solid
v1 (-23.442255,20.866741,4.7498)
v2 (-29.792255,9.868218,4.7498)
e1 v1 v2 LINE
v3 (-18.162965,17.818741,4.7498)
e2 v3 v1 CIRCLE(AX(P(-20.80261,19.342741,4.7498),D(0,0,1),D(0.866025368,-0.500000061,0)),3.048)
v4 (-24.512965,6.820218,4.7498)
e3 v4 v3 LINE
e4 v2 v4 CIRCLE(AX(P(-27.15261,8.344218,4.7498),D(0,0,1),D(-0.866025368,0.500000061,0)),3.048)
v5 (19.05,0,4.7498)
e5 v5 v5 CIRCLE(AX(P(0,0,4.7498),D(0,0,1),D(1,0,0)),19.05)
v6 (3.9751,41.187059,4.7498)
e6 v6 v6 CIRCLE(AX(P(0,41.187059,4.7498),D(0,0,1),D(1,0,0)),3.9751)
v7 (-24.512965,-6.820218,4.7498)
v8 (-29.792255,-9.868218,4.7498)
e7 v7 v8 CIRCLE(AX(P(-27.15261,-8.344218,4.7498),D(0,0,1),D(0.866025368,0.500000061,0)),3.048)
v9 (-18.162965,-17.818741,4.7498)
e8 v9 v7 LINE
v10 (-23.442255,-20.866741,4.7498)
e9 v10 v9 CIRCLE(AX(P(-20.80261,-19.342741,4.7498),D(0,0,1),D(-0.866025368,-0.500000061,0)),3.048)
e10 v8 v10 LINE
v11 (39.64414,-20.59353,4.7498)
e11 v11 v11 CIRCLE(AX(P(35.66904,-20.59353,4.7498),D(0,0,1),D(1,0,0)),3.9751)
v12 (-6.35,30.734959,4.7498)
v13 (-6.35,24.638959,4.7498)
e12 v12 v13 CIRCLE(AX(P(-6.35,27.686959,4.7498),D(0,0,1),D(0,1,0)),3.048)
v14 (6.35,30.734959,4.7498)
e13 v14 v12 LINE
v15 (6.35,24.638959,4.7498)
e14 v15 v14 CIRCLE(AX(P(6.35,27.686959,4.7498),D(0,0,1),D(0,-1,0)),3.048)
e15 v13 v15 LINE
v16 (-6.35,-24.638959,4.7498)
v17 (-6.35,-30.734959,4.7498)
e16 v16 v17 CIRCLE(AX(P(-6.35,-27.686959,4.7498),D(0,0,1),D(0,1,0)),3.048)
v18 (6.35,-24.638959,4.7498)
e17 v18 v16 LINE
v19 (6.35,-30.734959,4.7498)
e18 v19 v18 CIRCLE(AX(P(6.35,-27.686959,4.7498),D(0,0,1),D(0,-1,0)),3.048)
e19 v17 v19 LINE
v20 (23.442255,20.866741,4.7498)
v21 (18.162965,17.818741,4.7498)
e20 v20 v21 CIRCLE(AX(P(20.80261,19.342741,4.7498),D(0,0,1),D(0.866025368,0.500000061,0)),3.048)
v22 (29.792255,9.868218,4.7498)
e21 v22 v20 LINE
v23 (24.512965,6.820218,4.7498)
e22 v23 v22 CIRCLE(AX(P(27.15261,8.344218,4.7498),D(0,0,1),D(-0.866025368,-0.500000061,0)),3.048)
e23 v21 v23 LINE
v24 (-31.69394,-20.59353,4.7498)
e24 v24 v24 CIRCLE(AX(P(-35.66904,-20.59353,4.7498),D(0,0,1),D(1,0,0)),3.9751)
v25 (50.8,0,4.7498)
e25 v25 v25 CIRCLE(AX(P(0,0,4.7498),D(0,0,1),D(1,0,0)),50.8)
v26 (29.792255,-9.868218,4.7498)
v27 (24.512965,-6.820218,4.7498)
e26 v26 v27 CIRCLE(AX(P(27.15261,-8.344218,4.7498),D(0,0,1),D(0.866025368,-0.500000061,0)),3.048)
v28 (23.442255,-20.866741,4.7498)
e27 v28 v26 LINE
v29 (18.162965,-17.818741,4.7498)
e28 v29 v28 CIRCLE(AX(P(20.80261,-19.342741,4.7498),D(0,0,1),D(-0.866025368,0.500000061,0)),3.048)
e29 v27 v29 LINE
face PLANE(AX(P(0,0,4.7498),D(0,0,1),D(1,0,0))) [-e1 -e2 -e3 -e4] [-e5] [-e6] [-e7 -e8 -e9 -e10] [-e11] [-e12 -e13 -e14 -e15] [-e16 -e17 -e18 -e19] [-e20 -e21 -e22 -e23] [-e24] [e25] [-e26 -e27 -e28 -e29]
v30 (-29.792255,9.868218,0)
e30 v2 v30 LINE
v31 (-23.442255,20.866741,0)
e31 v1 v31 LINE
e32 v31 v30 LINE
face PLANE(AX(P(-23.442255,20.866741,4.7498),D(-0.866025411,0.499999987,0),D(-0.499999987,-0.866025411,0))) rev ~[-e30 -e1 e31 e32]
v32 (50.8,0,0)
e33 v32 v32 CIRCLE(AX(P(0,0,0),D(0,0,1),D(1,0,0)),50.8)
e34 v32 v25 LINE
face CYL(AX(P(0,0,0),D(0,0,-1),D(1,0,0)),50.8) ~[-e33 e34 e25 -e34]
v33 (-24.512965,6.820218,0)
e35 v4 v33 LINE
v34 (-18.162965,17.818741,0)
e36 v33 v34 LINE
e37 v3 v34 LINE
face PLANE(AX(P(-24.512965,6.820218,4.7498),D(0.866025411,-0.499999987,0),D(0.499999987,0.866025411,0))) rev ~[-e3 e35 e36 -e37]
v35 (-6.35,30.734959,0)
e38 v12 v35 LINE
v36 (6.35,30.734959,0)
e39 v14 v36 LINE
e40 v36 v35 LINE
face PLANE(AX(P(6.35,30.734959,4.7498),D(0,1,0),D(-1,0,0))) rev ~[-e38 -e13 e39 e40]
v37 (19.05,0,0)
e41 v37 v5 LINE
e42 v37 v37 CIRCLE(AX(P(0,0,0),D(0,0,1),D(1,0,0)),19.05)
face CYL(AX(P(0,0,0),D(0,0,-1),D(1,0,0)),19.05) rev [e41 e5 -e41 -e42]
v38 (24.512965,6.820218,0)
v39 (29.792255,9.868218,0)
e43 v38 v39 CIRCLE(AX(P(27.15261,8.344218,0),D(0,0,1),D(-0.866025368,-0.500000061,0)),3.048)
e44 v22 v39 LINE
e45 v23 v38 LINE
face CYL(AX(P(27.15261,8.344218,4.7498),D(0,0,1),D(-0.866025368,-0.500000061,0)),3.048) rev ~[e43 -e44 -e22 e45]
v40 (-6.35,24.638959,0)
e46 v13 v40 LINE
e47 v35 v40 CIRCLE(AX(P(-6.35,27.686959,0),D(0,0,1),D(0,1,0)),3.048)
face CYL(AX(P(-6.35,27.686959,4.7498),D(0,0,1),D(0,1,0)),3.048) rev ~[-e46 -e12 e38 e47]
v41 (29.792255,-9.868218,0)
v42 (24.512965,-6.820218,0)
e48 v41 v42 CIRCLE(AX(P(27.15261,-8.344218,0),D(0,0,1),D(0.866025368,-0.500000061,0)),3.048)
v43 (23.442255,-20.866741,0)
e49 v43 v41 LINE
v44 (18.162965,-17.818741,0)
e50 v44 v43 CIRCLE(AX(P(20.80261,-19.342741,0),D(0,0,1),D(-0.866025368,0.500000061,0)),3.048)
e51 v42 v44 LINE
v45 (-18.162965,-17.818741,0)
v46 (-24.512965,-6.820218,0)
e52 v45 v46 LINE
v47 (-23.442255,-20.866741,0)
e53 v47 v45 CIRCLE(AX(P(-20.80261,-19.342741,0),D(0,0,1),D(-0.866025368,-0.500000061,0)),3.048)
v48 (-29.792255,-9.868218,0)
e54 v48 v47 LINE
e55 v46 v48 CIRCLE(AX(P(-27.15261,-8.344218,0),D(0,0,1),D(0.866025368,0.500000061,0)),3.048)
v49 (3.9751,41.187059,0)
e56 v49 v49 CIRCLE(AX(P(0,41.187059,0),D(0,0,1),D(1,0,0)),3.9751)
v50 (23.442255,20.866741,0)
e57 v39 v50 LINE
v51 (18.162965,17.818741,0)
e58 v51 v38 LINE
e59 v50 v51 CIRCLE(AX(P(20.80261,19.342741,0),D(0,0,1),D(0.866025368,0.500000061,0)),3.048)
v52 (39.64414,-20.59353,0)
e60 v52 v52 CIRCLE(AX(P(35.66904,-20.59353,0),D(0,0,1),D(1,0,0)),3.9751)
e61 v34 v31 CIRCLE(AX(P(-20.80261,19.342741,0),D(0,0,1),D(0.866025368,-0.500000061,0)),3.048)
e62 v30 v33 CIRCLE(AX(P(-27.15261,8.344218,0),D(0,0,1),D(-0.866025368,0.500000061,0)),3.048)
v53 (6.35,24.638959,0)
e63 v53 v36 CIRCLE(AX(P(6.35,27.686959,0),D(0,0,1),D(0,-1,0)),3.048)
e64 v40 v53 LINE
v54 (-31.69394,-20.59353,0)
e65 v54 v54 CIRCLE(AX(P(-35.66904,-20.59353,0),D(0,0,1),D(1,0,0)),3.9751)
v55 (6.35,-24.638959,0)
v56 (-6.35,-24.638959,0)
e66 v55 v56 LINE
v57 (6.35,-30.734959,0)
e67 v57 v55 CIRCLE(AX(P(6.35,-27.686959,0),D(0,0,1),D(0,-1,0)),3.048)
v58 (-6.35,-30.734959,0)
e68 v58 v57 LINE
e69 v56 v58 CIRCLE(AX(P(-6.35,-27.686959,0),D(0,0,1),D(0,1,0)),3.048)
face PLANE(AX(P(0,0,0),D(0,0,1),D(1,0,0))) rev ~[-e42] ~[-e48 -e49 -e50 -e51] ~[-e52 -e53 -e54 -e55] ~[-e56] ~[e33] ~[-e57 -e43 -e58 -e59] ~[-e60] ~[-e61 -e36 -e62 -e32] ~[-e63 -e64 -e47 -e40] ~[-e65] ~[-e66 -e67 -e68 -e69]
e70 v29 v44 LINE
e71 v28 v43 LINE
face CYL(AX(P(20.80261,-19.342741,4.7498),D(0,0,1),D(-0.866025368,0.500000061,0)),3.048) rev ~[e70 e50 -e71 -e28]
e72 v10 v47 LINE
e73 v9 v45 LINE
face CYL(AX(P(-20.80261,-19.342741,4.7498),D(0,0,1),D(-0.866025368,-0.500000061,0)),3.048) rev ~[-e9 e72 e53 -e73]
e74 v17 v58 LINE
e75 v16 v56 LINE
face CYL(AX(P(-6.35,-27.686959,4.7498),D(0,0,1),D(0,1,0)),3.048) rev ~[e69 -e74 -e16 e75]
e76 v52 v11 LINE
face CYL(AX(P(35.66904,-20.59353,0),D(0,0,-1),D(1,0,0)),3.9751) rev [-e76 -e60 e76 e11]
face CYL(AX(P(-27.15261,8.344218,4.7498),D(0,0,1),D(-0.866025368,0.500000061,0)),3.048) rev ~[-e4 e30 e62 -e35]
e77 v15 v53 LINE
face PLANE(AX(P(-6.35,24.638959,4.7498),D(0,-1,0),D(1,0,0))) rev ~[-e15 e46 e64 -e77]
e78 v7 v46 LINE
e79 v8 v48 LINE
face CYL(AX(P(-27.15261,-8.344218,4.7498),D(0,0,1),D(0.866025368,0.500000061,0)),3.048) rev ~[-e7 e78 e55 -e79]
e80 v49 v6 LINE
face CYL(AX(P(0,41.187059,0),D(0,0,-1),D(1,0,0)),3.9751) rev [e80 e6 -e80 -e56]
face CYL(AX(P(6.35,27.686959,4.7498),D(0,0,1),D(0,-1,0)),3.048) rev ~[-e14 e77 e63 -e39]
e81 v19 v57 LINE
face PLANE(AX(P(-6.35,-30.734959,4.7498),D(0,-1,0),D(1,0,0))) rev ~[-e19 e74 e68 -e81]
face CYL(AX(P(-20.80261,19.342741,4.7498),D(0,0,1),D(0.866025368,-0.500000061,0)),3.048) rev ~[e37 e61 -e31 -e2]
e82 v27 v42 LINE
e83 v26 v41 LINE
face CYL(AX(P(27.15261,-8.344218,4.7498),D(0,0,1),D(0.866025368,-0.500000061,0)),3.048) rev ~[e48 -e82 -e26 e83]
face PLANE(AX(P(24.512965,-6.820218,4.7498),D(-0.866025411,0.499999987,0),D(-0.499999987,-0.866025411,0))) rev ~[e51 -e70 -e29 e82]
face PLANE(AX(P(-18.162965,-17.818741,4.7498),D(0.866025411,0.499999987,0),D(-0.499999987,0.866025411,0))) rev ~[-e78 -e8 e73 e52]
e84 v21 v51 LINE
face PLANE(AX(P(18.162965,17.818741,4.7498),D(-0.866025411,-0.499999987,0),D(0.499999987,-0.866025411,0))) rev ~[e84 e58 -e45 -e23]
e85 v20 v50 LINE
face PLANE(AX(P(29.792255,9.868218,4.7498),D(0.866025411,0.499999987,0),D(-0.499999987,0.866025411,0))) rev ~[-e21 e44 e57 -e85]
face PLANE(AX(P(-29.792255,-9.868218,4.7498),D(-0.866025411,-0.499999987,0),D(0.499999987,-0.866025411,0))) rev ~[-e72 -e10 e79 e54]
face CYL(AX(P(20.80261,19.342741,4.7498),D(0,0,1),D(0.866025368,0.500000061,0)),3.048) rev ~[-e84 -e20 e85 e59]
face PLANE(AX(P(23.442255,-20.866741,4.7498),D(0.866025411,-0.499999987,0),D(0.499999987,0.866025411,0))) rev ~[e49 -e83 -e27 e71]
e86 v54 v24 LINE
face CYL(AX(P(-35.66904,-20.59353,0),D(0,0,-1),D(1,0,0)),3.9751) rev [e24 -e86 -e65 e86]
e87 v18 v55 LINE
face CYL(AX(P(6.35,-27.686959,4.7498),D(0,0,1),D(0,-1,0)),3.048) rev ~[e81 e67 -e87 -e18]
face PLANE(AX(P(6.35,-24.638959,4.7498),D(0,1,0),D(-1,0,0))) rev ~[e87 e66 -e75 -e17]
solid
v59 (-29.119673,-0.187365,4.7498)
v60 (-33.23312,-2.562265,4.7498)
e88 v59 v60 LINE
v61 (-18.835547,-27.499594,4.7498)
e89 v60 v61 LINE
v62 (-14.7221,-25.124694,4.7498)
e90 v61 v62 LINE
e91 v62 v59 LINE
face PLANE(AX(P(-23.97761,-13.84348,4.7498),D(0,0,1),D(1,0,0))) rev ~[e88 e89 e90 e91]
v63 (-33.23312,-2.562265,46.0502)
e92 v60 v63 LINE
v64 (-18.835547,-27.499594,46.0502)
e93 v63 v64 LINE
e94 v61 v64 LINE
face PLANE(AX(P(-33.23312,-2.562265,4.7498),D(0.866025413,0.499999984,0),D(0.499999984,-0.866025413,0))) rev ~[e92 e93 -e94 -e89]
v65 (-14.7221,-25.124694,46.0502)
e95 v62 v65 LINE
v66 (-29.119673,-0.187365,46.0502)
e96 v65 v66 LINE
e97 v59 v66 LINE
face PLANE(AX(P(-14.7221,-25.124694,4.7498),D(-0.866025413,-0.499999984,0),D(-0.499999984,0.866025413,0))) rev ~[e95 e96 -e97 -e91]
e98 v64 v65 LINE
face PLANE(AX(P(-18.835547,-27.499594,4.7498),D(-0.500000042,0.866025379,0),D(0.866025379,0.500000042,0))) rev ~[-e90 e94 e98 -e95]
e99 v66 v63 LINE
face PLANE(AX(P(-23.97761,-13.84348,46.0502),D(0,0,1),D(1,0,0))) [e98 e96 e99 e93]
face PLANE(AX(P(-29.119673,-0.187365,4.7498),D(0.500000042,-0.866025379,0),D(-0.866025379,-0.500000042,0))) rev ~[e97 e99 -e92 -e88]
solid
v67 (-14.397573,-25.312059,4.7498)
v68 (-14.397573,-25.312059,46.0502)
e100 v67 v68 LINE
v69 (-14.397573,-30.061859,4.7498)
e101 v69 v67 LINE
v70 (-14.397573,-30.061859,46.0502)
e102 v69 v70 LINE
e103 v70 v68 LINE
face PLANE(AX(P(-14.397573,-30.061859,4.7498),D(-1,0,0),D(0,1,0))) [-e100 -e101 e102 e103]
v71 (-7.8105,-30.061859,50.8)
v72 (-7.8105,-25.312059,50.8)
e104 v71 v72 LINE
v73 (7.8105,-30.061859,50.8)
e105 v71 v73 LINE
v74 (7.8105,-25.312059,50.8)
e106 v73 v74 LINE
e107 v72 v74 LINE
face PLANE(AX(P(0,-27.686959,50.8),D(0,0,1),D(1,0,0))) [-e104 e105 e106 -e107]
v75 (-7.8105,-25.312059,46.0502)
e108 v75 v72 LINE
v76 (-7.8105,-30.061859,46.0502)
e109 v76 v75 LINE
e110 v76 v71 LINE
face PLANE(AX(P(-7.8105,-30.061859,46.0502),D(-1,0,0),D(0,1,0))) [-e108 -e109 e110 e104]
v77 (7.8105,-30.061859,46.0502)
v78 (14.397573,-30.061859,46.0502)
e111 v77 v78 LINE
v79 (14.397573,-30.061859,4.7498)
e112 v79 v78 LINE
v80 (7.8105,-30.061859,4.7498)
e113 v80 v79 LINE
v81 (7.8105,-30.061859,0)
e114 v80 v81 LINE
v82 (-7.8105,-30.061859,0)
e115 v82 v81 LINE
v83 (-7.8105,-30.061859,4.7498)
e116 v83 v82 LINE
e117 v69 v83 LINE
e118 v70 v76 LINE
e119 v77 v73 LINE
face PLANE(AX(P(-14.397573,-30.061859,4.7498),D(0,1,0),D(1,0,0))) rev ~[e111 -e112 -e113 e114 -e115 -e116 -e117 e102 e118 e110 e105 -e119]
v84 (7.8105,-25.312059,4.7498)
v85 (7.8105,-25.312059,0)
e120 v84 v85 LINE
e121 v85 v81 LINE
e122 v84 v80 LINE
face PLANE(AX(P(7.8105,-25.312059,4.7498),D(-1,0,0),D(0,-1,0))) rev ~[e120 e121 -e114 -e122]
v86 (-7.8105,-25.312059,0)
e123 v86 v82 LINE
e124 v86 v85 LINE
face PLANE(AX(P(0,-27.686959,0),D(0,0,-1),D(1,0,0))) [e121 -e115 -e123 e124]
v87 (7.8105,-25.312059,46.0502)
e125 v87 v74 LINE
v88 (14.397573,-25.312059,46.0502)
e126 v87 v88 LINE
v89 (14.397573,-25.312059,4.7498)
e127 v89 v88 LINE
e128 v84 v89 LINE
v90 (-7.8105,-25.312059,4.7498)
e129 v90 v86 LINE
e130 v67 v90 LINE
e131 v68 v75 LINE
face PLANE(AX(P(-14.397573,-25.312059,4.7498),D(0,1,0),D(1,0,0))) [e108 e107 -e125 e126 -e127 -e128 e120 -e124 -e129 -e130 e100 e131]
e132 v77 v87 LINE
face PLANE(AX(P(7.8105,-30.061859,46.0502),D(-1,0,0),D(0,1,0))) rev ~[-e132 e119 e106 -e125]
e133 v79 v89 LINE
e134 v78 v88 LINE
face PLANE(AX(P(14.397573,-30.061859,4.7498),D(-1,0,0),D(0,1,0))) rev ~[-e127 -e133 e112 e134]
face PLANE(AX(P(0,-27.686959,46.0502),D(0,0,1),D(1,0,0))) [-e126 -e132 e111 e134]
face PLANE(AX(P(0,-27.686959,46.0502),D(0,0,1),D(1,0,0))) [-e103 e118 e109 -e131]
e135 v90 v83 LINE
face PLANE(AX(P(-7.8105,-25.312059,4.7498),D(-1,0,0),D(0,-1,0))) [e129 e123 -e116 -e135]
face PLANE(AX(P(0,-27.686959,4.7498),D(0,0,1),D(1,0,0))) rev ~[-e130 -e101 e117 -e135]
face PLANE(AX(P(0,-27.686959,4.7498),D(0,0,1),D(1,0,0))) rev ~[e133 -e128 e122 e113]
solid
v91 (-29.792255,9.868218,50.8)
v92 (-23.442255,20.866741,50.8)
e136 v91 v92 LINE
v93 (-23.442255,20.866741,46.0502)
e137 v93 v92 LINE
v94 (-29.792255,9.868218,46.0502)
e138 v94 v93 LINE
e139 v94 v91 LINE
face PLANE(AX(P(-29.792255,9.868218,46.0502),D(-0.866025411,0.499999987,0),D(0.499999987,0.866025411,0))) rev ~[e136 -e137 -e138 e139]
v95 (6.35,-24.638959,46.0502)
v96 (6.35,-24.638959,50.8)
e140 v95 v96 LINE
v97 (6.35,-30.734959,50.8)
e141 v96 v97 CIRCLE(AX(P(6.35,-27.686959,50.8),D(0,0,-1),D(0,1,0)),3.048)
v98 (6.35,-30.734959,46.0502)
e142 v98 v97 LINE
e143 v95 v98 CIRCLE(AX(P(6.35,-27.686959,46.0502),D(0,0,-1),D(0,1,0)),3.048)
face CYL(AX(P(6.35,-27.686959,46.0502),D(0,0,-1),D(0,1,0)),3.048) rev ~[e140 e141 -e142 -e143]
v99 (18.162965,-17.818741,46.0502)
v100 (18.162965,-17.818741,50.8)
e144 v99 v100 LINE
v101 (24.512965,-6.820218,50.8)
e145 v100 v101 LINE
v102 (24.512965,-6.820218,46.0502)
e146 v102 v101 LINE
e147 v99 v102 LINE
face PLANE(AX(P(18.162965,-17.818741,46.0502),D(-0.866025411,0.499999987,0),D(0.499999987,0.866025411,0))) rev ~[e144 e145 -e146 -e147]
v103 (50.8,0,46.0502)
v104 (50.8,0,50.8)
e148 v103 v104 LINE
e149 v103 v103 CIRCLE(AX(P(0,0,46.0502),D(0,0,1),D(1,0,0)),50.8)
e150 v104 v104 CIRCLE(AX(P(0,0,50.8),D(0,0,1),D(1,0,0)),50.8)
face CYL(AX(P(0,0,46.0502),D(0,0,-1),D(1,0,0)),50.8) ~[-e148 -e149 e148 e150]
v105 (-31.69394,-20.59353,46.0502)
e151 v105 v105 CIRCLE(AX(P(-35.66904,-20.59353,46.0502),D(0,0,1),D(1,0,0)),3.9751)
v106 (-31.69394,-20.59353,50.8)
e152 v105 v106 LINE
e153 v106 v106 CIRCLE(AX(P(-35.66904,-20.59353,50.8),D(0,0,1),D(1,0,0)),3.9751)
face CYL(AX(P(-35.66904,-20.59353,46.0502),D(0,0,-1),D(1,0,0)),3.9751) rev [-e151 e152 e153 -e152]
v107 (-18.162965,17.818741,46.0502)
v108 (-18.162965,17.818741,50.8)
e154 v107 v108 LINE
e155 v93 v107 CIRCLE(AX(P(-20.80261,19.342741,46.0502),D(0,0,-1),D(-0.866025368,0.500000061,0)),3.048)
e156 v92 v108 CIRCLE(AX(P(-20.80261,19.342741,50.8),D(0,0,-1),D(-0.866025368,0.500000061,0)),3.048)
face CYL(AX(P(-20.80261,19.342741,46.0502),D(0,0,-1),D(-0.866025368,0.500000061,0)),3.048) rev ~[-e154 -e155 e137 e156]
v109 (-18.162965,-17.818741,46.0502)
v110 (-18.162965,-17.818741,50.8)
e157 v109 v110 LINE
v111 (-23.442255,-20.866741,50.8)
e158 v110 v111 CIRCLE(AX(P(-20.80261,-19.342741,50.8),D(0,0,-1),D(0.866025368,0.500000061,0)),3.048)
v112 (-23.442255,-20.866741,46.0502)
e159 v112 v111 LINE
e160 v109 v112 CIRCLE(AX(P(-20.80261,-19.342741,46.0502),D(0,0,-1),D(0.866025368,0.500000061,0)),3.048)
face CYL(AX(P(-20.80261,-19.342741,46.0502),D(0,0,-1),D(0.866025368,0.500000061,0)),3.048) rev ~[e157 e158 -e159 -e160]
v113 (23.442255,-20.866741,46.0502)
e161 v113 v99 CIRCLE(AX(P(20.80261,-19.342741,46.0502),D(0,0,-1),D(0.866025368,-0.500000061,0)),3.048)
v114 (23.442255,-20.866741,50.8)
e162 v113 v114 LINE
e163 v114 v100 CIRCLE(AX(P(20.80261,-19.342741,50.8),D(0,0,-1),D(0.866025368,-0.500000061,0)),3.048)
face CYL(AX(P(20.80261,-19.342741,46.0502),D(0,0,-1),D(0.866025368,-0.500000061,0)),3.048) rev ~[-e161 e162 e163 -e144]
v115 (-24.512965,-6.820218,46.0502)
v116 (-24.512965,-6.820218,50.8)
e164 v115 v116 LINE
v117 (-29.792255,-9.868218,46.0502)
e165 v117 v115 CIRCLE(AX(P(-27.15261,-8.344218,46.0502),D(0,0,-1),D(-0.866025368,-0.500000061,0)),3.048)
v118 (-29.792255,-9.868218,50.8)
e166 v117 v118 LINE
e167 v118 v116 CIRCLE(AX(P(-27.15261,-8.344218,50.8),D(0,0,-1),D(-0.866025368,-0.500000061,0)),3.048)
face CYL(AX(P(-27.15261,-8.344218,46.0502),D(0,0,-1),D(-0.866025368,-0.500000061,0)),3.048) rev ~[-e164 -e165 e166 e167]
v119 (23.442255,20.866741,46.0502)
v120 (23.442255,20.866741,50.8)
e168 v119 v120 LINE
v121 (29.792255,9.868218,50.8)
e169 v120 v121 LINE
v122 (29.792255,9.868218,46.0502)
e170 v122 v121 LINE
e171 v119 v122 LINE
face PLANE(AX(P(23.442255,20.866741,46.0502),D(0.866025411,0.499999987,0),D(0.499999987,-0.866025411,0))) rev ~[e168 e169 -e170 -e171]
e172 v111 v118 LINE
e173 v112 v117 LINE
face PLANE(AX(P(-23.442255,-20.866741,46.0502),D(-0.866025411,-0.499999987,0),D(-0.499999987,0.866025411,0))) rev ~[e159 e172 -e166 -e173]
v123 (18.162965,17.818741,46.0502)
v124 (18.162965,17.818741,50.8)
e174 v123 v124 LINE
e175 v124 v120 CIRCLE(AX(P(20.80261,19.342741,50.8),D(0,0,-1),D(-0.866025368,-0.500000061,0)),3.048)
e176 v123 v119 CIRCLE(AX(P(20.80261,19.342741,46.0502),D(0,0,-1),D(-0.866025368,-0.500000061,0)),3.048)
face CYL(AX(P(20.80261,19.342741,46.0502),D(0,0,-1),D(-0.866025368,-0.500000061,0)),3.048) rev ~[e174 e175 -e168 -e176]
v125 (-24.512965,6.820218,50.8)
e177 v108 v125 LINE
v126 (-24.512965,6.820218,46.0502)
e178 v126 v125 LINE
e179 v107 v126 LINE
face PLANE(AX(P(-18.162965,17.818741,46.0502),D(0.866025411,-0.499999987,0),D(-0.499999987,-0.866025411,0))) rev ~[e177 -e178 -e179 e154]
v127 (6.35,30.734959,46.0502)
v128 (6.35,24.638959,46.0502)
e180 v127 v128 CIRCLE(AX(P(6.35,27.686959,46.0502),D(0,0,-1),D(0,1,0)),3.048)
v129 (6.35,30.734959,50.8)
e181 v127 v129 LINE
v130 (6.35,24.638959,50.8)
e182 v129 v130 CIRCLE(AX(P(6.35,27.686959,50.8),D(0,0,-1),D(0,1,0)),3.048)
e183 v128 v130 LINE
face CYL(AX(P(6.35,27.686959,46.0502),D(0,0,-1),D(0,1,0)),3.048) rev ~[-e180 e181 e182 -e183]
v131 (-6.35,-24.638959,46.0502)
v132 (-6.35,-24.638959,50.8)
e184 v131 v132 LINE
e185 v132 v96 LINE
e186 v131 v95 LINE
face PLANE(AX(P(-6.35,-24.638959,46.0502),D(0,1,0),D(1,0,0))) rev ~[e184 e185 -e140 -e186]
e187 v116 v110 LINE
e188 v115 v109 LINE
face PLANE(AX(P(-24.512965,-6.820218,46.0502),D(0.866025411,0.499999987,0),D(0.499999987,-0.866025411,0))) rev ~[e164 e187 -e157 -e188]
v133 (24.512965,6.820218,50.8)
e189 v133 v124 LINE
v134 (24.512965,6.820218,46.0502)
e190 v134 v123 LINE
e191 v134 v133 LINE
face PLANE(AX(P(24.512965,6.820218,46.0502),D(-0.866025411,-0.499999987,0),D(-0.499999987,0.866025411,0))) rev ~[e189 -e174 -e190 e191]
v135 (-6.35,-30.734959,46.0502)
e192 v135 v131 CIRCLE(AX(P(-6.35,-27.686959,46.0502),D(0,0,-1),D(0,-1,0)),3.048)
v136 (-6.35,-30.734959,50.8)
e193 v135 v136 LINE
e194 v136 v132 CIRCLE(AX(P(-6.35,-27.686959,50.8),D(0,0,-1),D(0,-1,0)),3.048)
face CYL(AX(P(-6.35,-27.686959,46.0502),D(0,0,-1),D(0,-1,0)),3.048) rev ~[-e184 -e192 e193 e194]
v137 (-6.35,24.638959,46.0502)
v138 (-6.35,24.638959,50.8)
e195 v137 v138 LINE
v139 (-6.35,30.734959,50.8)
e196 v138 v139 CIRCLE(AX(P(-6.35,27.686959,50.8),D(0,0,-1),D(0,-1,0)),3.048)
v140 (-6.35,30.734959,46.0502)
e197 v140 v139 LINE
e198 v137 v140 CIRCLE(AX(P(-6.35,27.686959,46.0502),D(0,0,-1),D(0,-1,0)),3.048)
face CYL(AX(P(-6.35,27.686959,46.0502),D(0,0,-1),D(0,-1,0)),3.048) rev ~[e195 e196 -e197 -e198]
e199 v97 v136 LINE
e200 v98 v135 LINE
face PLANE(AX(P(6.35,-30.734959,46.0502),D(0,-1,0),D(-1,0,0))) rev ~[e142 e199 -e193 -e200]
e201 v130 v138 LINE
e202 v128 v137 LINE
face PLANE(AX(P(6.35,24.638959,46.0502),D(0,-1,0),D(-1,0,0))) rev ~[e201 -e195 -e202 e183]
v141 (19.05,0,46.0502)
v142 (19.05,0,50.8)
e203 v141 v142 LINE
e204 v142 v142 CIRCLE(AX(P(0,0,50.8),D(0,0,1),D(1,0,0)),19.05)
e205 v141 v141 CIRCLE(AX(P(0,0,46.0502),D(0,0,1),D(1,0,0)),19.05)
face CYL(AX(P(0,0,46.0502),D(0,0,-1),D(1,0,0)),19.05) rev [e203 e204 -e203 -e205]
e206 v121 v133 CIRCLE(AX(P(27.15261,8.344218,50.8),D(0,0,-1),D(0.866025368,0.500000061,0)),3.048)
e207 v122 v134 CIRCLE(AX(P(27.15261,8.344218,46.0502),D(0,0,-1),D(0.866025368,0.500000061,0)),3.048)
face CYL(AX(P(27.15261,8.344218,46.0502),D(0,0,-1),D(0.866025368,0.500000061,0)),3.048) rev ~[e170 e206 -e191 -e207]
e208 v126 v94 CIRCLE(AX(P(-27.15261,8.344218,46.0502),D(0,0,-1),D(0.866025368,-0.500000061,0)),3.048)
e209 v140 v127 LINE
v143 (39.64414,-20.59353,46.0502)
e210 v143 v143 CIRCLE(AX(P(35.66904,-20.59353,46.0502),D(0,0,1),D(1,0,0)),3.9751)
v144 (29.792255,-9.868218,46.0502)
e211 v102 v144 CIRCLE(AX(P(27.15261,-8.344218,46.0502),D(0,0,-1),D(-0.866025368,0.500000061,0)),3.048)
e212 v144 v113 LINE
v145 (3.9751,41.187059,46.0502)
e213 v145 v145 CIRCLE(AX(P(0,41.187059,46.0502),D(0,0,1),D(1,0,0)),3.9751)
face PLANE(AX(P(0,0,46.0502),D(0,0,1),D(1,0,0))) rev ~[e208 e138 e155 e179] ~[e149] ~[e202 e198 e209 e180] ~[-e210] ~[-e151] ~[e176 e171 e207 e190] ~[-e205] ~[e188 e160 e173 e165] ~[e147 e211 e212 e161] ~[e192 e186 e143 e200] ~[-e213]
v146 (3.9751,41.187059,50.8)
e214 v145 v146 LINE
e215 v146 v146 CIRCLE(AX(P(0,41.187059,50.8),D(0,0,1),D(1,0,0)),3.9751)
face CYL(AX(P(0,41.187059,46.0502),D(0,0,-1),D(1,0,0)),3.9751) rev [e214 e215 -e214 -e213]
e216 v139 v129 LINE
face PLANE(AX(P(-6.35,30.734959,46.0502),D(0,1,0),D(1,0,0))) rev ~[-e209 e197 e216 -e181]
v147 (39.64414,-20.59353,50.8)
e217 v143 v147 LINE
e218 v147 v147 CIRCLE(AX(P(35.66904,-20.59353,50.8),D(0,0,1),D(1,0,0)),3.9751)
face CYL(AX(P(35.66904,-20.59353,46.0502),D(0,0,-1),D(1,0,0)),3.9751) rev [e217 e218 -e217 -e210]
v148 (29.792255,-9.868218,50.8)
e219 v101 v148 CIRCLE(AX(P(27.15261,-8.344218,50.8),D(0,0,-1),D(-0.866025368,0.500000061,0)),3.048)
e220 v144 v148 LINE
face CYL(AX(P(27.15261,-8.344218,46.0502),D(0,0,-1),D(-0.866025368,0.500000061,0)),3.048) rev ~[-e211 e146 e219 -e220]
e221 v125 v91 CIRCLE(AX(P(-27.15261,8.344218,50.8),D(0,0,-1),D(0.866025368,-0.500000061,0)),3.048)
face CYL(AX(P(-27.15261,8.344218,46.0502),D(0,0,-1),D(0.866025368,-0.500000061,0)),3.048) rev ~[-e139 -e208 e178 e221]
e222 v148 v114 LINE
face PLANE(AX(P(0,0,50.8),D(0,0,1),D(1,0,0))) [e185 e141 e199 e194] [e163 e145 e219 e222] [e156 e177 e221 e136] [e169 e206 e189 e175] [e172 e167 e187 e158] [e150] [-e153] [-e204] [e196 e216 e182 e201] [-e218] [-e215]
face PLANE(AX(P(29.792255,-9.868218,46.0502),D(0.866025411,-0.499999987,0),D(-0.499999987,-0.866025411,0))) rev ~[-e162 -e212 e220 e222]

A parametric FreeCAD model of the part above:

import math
import FreeCAD as App
import Part
import Sketcher
Q = App.Units.Quantity

doc = App.newDocument("Part")
body = doc.addObject("PartDesign::Body", "Body")

# Sketch on XY plane
sketch1 = body.newObject("Sketcher::SketchObject", "Sketch")
sketch1.AttachmentSupport = (doc.getObject("XY_Plane"), [""])
sketch1.MapMode = "FlatFace"
sketch1.addGeometry(Part.Circle(App.Vector(0, 0, 0), App.Vector(0, 0, 1), 50.8), False)
sketch1.addGeometry(Part.Circle(App.Vector(-35.7, -20.6, 0), App.Vector(0, 0, 1), 4), False)
sketch1.addGeometry(Part.Circle(App.Vector(35.7, -20.6, 0), App.Vector(0, 0, 1), 4), False)
sketch1.addGeometry(Part.Circle(App.Vector(0, 0, 0), App.Vector(0, 0, 1), 19.1), False)
sketch1.addGeometry(Part.Circle(App.Vector(0, 41.2, 0), App.Vector(0, 0, 1), 4), False)
sketch1.addConstraint(Sketcher.Constraint("Coincident", 0, 3, -1, 1))
sketch1.addConstraint(Sketcher.Constraint("Coincident", 3, 3, -1, 1))
sketch1.addConstraint(Sketcher.Constraint("Equal", 1, 2))
sketch1.addConstraint(Sketcher.Constraint("Equal", 2, 4))
sketch1.addConstraint(Sketcher.Constraint("Symmetric", 1, 3, 2, 3, -2))
sketch1.addConstraint(Sketcher.Constraint("PointOnObject", 4, 3, -2))
sketch1.addConstraint(Sketcher.Constraint("Diameter", 0, Q("4 in")))
sketch1.addConstraint(Sketcher.Constraint("Diameter", 3, Q("1.5 in")))
sketch1.addConstraint(Sketcher.Constraint("Diameter", 1, Q("0.313 in")))
sketch1.addConstraint(Sketcher.Constraint("DistanceX", 1, 3, -1, 1, 35.66904))
sketch1.addConstraint(Sketcher.Constraint("DistanceY", 1, 3, -1, 1, 20.59353))
sketch1.addConstraint(Sketcher.Constraint("DistanceY", -1, 1, 4, 3, 41.187059))
pad1 = body.newObject("PartDesign::Pad", "Pad")
pad1.Profile = sketch1
pad1.Length = Q("0.187 in")

# Sketch on XY plane
sketch2 = body.newObject("Sketcher::SketchObject", "Sketch001")
sketch2.AttachmentSupport = (doc.getObject("XY_Plane"), [""])
sketch2.MapMode = "FlatFace"
sketch2.AttachmentOffset = App.Placement(App.Vector(0, 0, 0.187 * 25.4), App.Rotation())
sketch2.addGeometry(Part.ArcOfCircle(Part.Circle(App.Vector(-6.3, 27.7, 0), App.Vector(0, 0, 1), 3), math.radians(90), math.radians(270)), False)
sketch2.addGeometry(Part.LineSegment(App.Vector(-6.3, 24.6, 0), App.Vector(6.3, 24.6, 0)), False)
sketch2.addGeometry(Part.ArcOfCircle(Part.Circle(App.Vector(6.3, 27.7, 0), App.Vector(0, 0, 1), 3), math.radians(-90), math.radians(90)), False)
sketch2.addGeometry(Part.LineSegment(App.Vector(6.3, 30.7, 0), App.Vector(-6.3, 30.7, 0)), False)
sketch2.addGeometry(Part.ArcOfCircle(Part.Circle(App.Vector(27.2, 8.3, 0), App.Vector(0, 0, 1), 3), math.radians(-150), math.radians(30)), False)
sketch2.addGeometry(Part.LineSegment(App.Vector(29.8, 9.9, 0), App.Vector(23.4, 20.9, 0)), False)
sketch2.addGeometry(Part.ArcOfCircle(Part.Circle(App.Vector(20.8, 19.3, 0), App.Vector(0, 0, 1), 3), math.radians(30), math.radians(210)), False)
sketch2.addGeometry(Part.LineSegment(App.Vector(18.2, 17.8, 0), App.Vector(24.5, 6.8, 0)), False)
sketch2.addGeometry(Part.ArcOfCircle(Part.Circle(App.Vector(27.2, -8.3, 0), App.Vector(0, 0, 1), 3), math.radians(-30), math.radians(150)), False)
sketch2.addGeometry(Part.LineSegment(App.Vector(24.5, -6.8, 0), App.Vector(18.2, -17.8, 0)), False)
sketch2.addGeometry(Part.ArcOfCircle(Part.Circle(App.Vector(20.8, -19.3, 0), App.Vector(0, 0, 1), 3), math.radians(150), math.radians(330)), False)
sketch2.addGeometry(Part.LineSegment(App.Vector(23.4, -20.9, 0), App.Vector(29.8, -9.9, 0)), False)
sketch2.addGeometry(Part.ArcOfCircle(Part.Circle(App.Vector(6.3, -27.7, 0), App.Vector(0, 0, 1), 3), math.radians(-90), math.radians(90)), False)
sketch2.addGeometry(Part.LineSegment(App.Vector(6.3, -24.6, 0), App.Vector(-6.3, -24.6, 0)), False)
sketch2.addGeometry(Part.ArcOfCircle(Part.Circle(App.Vector(-6.3, -27.7, 0), App.Vector(0, 0, 1), 3), math.radians(90), math.radians(270)), False)
sketch2.addGeometry(Part.LineSegment(App.Vector(-6.3, -30.7, 0), App.Vector(6.3, -30.7, 0)), False)
sketch2.addGeometry(Part.ArcOfCircle(Part.Circle(App.Vector(-20.8, -19.3, 0), App.Vector(0, 0, 1), 3), math.radians(-150), math.radians(30)), False)
sketch2.addGeometry(Part.LineSegment(App.Vector(-18.2, -17.8, 0), App.Vector(-24.5, -6.8, 0)), False)
sketch2.addGeometry(Part.ArcOfCircle(Part.Circle(App.Vector(-27.2, -8.3, 0), App.Vector(0, 0, 1), 3), math.radians(30), math.radians(210)), False)
sketch2.addGeometry(Part.LineSegment(App.Vector(-29.8, -9.9, 0), App.Vector(-23.4, -20.9, 0)), False)
sketch2.addGeometry(Part.ArcOfCircle(Part.Circle(App.Vector(-27.2, 8.3, 0), App.Vector(0, 0, 1), 3), math.radians(150), math.radians(330)), False)
sketch2.addGeometry(Part.LineSegment(App.Vector(-24.5, 6.8, 0), App.Vector(-18.2, 17.8, 0)), False)
sketch2.addGeometry(Part.ArcOfCircle(Part.Circle(App.Vector(-20.8, 19.3, 0), App.Vector(0, 0, 1), 3), math.radians(-30), math.radians(150)), False)
sketch2.addGeometry(Part.LineSegment(App.Vector(-23.4, 20.9, 0), App.Vector(-29.8, 9.9, 0)), False)
sketch2.addConstraint(Sketcher.Constraint("Tangent", 0, 2, 1, 1))
sketch2.addConstraint(Sketcher.Constraint("Tangent", 1, 2, 2, 1))
sketch2.addConstraint(Sketcher.Constraint("Tangent", 2, 2, 3, 1))
sketch2.addConstraint(Sketcher.Constraint("Tangent", 3, 2, 0, 1))
sketch2.addConstraint(Sketcher.Constraint("Tangent", 4, 2, 5, 1))
sketch2.addConstraint(Sketcher.Constraint("Tangent", 5, 2, 6, 1))
sketch2.addConstraint(Sketcher.Constraint("Tangent", 6, 2, 7, 1))
sketch2.addConstraint(Sketcher.Constraint("Tangent", 7, 2, 4, 1))
sketch2.addConstraint(Sketcher.Constraint("Tangent", 8, 2, 9, 1))
sketch2.addConstraint(Sketcher.Constraint("Tangent", 9, 2, 10, 1))
sketch2.addConstraint(Sketcher.Constraint("Tangent", 10, 2, 11, 1))
sketch2.addConstraint(Sketcher.Constraint("Tangent", 11, 2, 8, 1))
sketch2.addConstraint(Sketcher.Constraint("Tangent", 12, 2, 13, 1))
sketch2.addConstraint(Sketcher.Constraint("Tangent", 13, 2, 14, 1))
sketch2.addConstraint(Sketcher.Constraint("Tangent", 14, 2, 15, 1))
sketch2.addConstraint(Sketcher.Constraint("Tangent", 15, 2, 12, 1))
sketch2.addConstraint(Sketcher.Constraint("Tangent", 16, 2, 17, 1))
sketch2.addConstraint(Sketcher.Constraint("Tangent", 17, 2, 18, 1))
sketch2.addConstraint(Sketcher.Constraint("Tangent", 18, 2, 19, 1))
sketch2.addConstraint(Sketcher.Constraint("Tangent", 19, 2, 16, 1))
sketch2.addConstraint(Sketcher.Constraint("Tangent", 20, 2, 21, 1))
sketch2.addConstraint(Sketcher.Constraint("Tangent", 21, 2, 22, 1))
sketch2.addConstraint(Sketcher.Constraint("Tangent", 22, 2, 23, 1))
sketch2.addConstraint(Sketcher.Constraint("Tangent", 23, 2, 20, 1))
sketch2.addConstraint(Sketcher.Constraint("Horizontal", 1))
sketch2.addConstraint(Sketcher.Constraint("Horizontal", 3))
sketch2.addConstraint(Sketcher.Constraint("Horizontal", 13))
sketch2.addConstraint(Sketcher.Constraint("Horizontal", 15))
sketch2.addConstraint(Sketcher.Constraint("Equal", 2, 4))
sketch2.addConstraint(Sketcher.Constraint("Equal", 4, 6))
sketch2.addConstraint(Sketcher.Constraint("Equal", 6, 8))
sketch2.addConstraint(Sketcher.Constraint("Equal", 8, 10))
sketch2.addConstraint(Sketcher.Constraint("Equal", 10, 12))
sketch2.addConstraint(Sketcher.Constraint("Equal", 14, 16))
sketch2.addConstraint(Sketcher.Constraint("Equal", 16, 18))
sketch2.addConstraint(Sketcher.Constraint("Equal", 18, 20))
sketch2.addConstraint(Sketcher.Constraint("Equal", 20, 22))
sketch2.addConstraint(Sketcher.Constraint("Symmetric", 0, 3, 12, 3, -1, 1))
sketch2.addConstraint(Sketcher.Constraint("Symmetric", 6, 3, 16, 3, -1, 1))
sketch2.addConstraint(Sketcher.Constraint("Symmetric", 4, 3, 18, 3, -1, 1))
sketch2.addConstraint(Sketcher.Constraint("Symmetric", 8, 3, 20, 3, -1, 1))
sketch2.addConstraint(Sketcher.Constraint("Symmetric", 10, 3, 22, 3, -1, 1))
sketch2.addConstraint(Sketcher.Constraint("Symmetric", 10, 3, 16, 3, -2))
sketch2.addConstraint(Sketcher.Constraint("Symmetric", 8, 3, 18, 3, -2))
sketch2.addConstraint(Sketcher.Constraint("Vertical", 2, 3, 12, 3))
sketch2.addConstraint(Sketcher.Constraint("Vertical", 0, 3, 14, 3))
sketch2.addConstraint(Sketcher.Constraint("Radius", 0, Q("0.12 in")))
sketch2.addConstraint(Sketcher.Constraint("DistanceX", 1, 1, 1, 2, Q("0.5 in")))
sketch2.addConstraint(Sketcher.Constraint("Angle", 5, Q("119.999999 deg")))
sketch2.addConstraint(Sketcher.Constraint("Distance", 5, Q("0.5 in")))
sketch2.addConstraint(Sketcher.Constraint("DistanceY", 10, 3, 2, 3, 47.0297))
sketch2.addConstraint(Sketcher.Constraint("DistanceY", -1, 1, 0, 3, 27.686959))
sketch2.addConstraint(Sketcher.Constraint("DistanceX", -1, 1, 4, 3, 27.15261))
pocket1 = body.newObject("PartDesign::Pocket", "Pocket")
pocket1.Profile = sketch2
pocket1.Length = Q("1 in")
body2 = doc.addObject("PartDesign::Body", "Body001")
body2.AllowCompound = True

# Sketch on XY plane
sketch3 = body2.newObject("Sketcher::SketchObject", "Sketch002")
sketch3.AttachmentSupport = (doc.getObject("XY_Plane001"), [""])
sketch3.MapMode = "FlatFace"
sketch3.AttachmentOffset = App.Placement(App.Vector(0, 0, 0.187 * 25.4), App.Rotation())
sketch3.addGeometry(Part.LineSegment(App.Vector(-14.4, -25.3, 0), App.Vector(-14.4, -30.1, 0)), False)
sketch3.addGeometry(Part.LineSegment(App.Vector(-14.4, -30.1, 0), App.Vector(14.4, -30.1, 0)), False)
sketch3.addGeometry(Part.LineSegment(App.Vector(14.4, -30.1, 0), App.Vector(14.4, -25.3, 0)), False)
sketch3.addGeometry(Part.LineSegment(App.Vector(14.4, -25.3, 0), App.Vector(-14.4, -25.3, 0)), False)
sketch3.addGeometry(Part.LineSegment(App.Vector(-18.8, -27.5, 0), App.Vector(-14.7, -25.1, 0)), False)
sketch3.addGeometry(Part.LineSegment(App.Vector(-14.7, -25.1, 0), App.Vector(-29.1, -0.2, 0)), False)
sketch3.addGeometry(Part.LineSegment(App.Vector(-29.1, -0.2, 0), App.Vector(-33.2, -2.6, 0)), False)
sketch3.addGeometry(Part.LineSegment(App.Vector(-33.2, -2.6, 0), App.Vector(-18.8, -27.5, 0)), False)
sketch3.addConstraint(Sketcher.Constraint("Coincident", 0, 2, 1, 1))
sketch3.addConstraint(Sketcher.Constraint("Coincident", 1, 2, 2, 1))
sketch3.addConstraint(Sketcher.Constraint("Coincident", 2, 2, 3, 1))
sketch3.addConstraint(Sketcher.Constraint("Coincident", 3, 2, 0, 1))
sketch3.addConstraint(Sketcher.Constraint("Coincident", 4, 2, 5, 1))
sketch3.addConstraint(Sketcher.Constraint("Coincident", 5, 2, 6, 1))
sketch3.addConstraint(Sketcher.Constraint("Coincident", 6, 2, 7, 1))
sketch3.addConstraint(Sketcher.Constraint("Coincident", 7, 2, 4, 1))
sketch3.addConstraint(Sketcher.Constraint("Vertical", 0))
sketch3.addConstraint(Sketcher.Constraint("Horizontal", 1))
sketch3.addConstraint(Sketcher.Constraint("Vertical", 2))
sketch3.addConstraint(Sketcher.Constraint("Horizontal", 3))
sketch3.addConstraint(Sketcher.Constraint("Perpendicular", 4, 5))
sketch3.addConstraint(Sketcher.Constraint("Perpendicular", 5, 6))
sketch3.addConstraint(Sketcher.Constraint("Perpendicular", 6, 7))
sketch3.addConstraint(Sketcher.Constraint("Angle", 4, Q("30.000003 deg")))
sketch3.addConstraint(Sketcher.Constraint("DistanceY", 0, 2, 0, 1, Q("0.187 in")))
sketch3.addConstraint(Sketcher.Constraint("Distance", 4, Q("0.187 in")))
sketch3.addConstraint(Sketcher.Constraint("DistanceX", 4, 2, -1, 1, 14.7221))
sketch3.addConstraint(Sketcher.Constraint("DistanceX", 5, 2, 3, 2, 14.7221))
sketch3.addConstraint(Sketcher.Constraint("DistanceX", 1, 1, 1, 2, 28.795146))
sketch3.addConstraint(Sketcher.Constraint("DistanceY", 0, 2, -1, 1, 30.061859))
sketch3.addConstraint(Sketcher.Constraint("DistanceX", 6, 2, -1, 1, 33.23312))
sketch3.addConstraint(Sketcher.Constraint("DistanceY", 4, 2, -1, 1, 25.124694))
pad2 = body2.newObject("PartDesign::Pad", "Pad001")
pad2.Profile = sketch3
pad2.Length = Q("1.626 in")

# Sketch on XY plane
sketch4 = body2.newObject("Sketcher::SketchObject", "Sketch003")
sketch4.AttachmentSupport = (doc.getObject("XY_Plane001"), [""])
sketch4.MapMode = "FlatFace"
sketch4.AttachmentOffset = App.Placement(App.Vector(0, 0, 0.187 * 25.4), App.Rotation())
sketch4.addGeometry(Part.LineSegment(App.Vector(-7.8, -30.1, 0), App.Vector(-7.8, -25.3, 0)), False)
sketch4.addGeometry(Part.LineSegment(App.Vector(-7.8, -25.3, 0), App.Vector(7.8, -25.3, 0)), False)
sketch4.addGeometry(Part.LineSegment(App.Vector(7.8, -25.3, 0), App.Vector(7.8, -30.1, 0)), False)
sketch4.addGeometry(Part.LineSegment(App.Vector(7.8, -30.1, 0), App.Vector(-7.8, -30.1, 0)), False)
sketch4.addConstraint(Sketcher.Constraint("Coincident", 0, 2, 1, 1))
sketch4.addConstraint(Sketcher.Constraint("Coincident", 1, 2, 2, 1))
sketch4.addConstraint(Sketcher.Constraint("Coincident", 2, 2, 3, 1))
sketch4.addConstraint(Sketcher.Constraint("Coincident", 3, 2, 0, 1))
sketch4.addConstraint(Sketcher.Constraint("Vertical", 0))
sketch4.addConstraint(Sketcher.Constraint("Horizontal", 1))
sketch4.addConstraint(Sketcher.Constraint("Vertical", 2))
sketch4.addConstraint(Sketcher.Constraint("Horizontal", 3))
sketch4.addConstraint(Sketcher.Constraint("DistanceX", 1, 1, 1, 2, Q("0.615 in")))
sketch4.addConstraint(Sketcher.Constraint("DistanceY", 0, 1, 0, 2, Q("0.187 in")))
sketch4.addConstraint(Sketcher.Constraint("DistanceX", 0, 2, -1, 1, Q("0.3075 in")))
sketch4.addConstraint(Sketcher.Constraint("DistanceY", 0, 2, -1, 1, 25.312059))
pad3 = body2.newObject("PartDesign::Pad", "Pad002")
pad3.Profile = sketch4
pad3.Length = Q("0.187 in")
pad3.Reversed = True

# Sketch on XY plane
sketch5 = body2.newObject("Sketcher::SketchObject", "Sketch004")
sketch5.AttachmentSupport = (doc.getObject("XY_Plane001"), [""])
sketch5.MapMode = "FlatFace"
sketch5.AttachmentOffset = App.Placement(App.Vector(0, 0, 1.813 * 25.4), App.Rotation())
sketch5.addGeometry(Part.LineSegment(App.Vector(-7.8, -25.3, 0), App.Vector(-7.8, -30.1, 0)), False)
sketch5.addGeometry(Part.LineSegment(App.Vector(-7.8, -30.1, 0), App.Vector(7.8, -30.1, 0)), False)
sketch5.addGeometry(Part.LineSegment(App.Vector(7.8, -30.1, 0), App.Vector(7.8, -25.3, 0)), False)
sketch5.addGeometry(Part.LineSegment(App.Vector(7.8, -25.3, 0), App.Vector(-7.8, -25.3, 0)), False)
sketch5.addConstraint(Sketcher.Constraint("Coincident", 0, 2, 1, 1))
sketch5.addConstraint(Sketcher.Constraint("Coincident", 1, 2, 2, 1))
sketch5.addConstraint(Sketcher.Constraint("Coincident", 2, 2, 3, 1))
sketch5.addConstraint(Sketcher.Constraint("Coincident", 3, 2, 0, 1))
sketch5.addConstraint(Sketcher.Constraint("Vertical", 0))
sketch5.addConstraint(Sketcher.Constraint("Horizontal", 1))
sketch5.addConstraint(Sketcher.Constraint("Vertical", 2))
sketch5.addConstraint(Sketcher.Constraint("Horizontal", 3))
sketch5.addConstraint(Sketcher.Constraint("DistanceX", 1, 1, 1, 2, Q("0.615 in")))
sketch5.addConstraint(Sketcher.Constraint("DistanceY", 0, 2, 0, 1, Q("0.187 in")))
sketch5.addConstraint(Sketcher.Constraint("DistanceX", 0, 2, -1, 1, Q("0.3075 in")))
sketch5.addConstraint(Sketcher.Constraint("DistanceY", 0, 2, -1, 1, 30.061859))
pad4 = body2.newObject("PartDesign::Pad", "Pad003")
pad4.Profile = sketch5
pad4.Length = Q("0.187 in")
body3 = doc.addObject("PartDesign::Body", "Body002")

# Sketch on XY plane
sketch6 = body3.newObject("Sketcher::SketchObject", "Sketch005")
sketch6.AttachmentSupport = (doc.getObject("XY_Plane002"), [""])
sketch6.MapMode = "FlatFace"
sketch6.AttachmentOffset = App.Placement(App.Vector(0, 0, 1.813 * 25.4), App.Rotation())
sketch6.addGeometry(Part.Circle(App.Vector(0, 0, 0), App.Vector(0, 0, 1), 50.8), False)
sketch6.addGeometry(Part.Circle(App.Vector(-35.7, -20.6, 0), App.Vector(0, 0, 1), 4), False)
sketch6.addGeometry(Part.ArcOfCircle(Part.Circle(App.Vector(-27.2, -8.3, 0), App.Vector(0, 0, 1), 3), math.radians(30), math.radians(210)), False)
sketch6.addGeometry(Part.LineSegment(App.Vector(-24.5, -6.8, 0), App.Vector(-18.2, -17.8, 0)), False)
sketch6.addGeometry(Part.ArcOfCircle(Part.Circle(App.Vector(-20.8, -19.3, 0), App.Vector(0, 0, 1), 3), math.radians(-150), math.radians(30)), False)
sketch6.addGeometry(Part.LineSegment(App.Vector(-23.4, -20.9, 0), App.Vector(-29.8, -9.9, 0)), False)
sketch6.addGeometry(Part.LineSegment(App.Vector(-6.3, -24.6, 0), App.Vector(6.3, -24.6, 0)), False)
sketch6.addGeometry(Part.ArcOfCircle(Part.Circle(App.Vector(6.3, -27.7, 0), App.Vector(0, 0, 1), 3), math.radians(-90), math.radians(90)), False)
sketch6.addGeometry(Part.LineSegment(App.Vector(6.3, -30.7, 0), App.Vector(-6.3, -30.7, 0)), False)
sketch6.addGeometry(Part.ArcOfCircle(Part.Circle(App.Vector(-6.3, -27.7, 0), App.Vector(0, 0, 1), 3), math.radians(90), math.radians(270)), False)
sketch6.addGeometry(Part.LineSegment(App.Vector(18.2, -17.8, 0), App.Vector(24.5, -6.8, 0)), False)
sketch6.addGeometry(Part.ArcOfCircle(Part.Circle(App.Vector(27.2, -8.3, 0), App.Vector(0, 0, 1), 3), math.radians(-30), math.radians(150)), False)
sketch6.addGeometry(Part.LineSegment(App.Vector(29.8, -9.9, 0), App.Vector(23.4, -20.9, 0)), False)
sketch6.addGeometry(Part.ArcOfCircle(Part.Circle(App.Vector(20.8, -19.3, 0), App.Vector(0, 0, 1), 3), math.radians(150), math.radians(330)), False)
sketch6.addGeometry(Part.Circle(App.Vector(35.7, -20.6, 0), App.Vector(0, 0, 1), 4), False)
sketch6.addGeometry(Part.Circle(App.Vector(0, 0, 0), App.Vector(0, 0, 1), 19.1), False)
sketch6.addGeometry(Part.ArcOfCircle(Part.Circle(App.Vector(-27.2, 8.3, 0), App.Vector(0, 0, 1), 3), math.radians(150), math.radians(330)), False)
sketch6.addGeometry(Part.LineSegment(App.Vector(-29.8, 9.9, 0), App.Vector(-23.4, 20.9, 0)), False)
sketch6.addGeometry(Part.ArcOfCircle(Part.Circle(App.Vector(-20.8, 19.3, 0), App.Vector(0, 0, 1), 3), math.radians(-30), math.radians(150)), False)
sketch6.addGeometry(Part.LineSegment(App.Vector(-18.2, 17.8, 0), App.Vector(-24.5, 6.8, 0)), False)
sketch6.addGeometry(Part.LineSegment(App.Vector(23.4, 20.9, 0), App.Vector(29.8, 9.9, 0)), False)
sketch6.addGeometry(Part.ArcOfCircle(Part.Circle(App.Vector(27.2, 8.3, 0), App.Vector(0, 0, 1), 3), math.radians(-150), math.radians(30)), False)
sketch6.addGeometry(Part.LineSegment(App.Vector(24.5, 6.8, 0), App.Vector(18.2, 17.8, 0)), False)
sketch6.addGeometry(Part.ArcOfCircle(Part.Circle(App.Vector(20.8, 19.3, 0), App.Vector(0, 0, 1), 3), math.radians(30), math.radians(210)), False)
sketch6.addGeometry(Part.ArcOfCircle(Part.Circle(App.Vector(-6.3, 27.7, 0), App.Vector(0, 0, 1), 3), math.radians(90), math.radians(270)), False)
sketch6.addGeometry(Part.LineSegment(App.Vector(-6.3, 30.7, 0), App.Vector(6.3, 30.7, 0)), False)
sketch6.addGeometry(Part.ArcOfCircle(Part.Circle(App.Vector(6.3, 27.7, 0), App.Vector(0, 0, 1), 3), math.radians(-90), math.radians(90)), False)
sketch6.addGeometry(Part.LineSegment(App.Vector(6.3, 24.6, 0), App.Vector(-6.3, 24.6, 0)), False)
sketch6.addGeometry(Part.Circle(App.Vector(0, 41.2, 0), App.Vector(0, 0, 1), 4), False)
sketch6.addConstraint(Sketcher.Constraint("Tangent", 2, 1, 3, 1))
sketch6.addConstraint(Sketcher.Constraint("Tangent", 3, 2, 4, 2))
sketch6.addConstraint(Sketcher.Constraint("Tangent", 4, 1, 5, 1))
sketch6.addConstraint(Sketcher.Constraint("Tangent", 5, 2, 2, 2))
sketch6.addConstraint(Sketcher.Constraint("Tangent", 6, 2, 7, 2))
sketch6.addConstraint(Sketcher.Constraint("Tangent", 7, 1, 8, 1))
sketch6.addConstraint(Sketcher.Constraint("Tangent", 8, 2, 9, 2))
sketch6.addConstraint(Sketcher.Constraint("Tangent", 9, 1, 6, 1))
sketch6.addConstraint(Sketcher.Constraint("Tangent", 10, 2, 11, 2))
sketch6.addConstraint(Sketcher.Constraint("Tangent", 11, 1, 12, 1))
sketch6.addConstraint(Sketcher.Constraint("Tangent", 12, 2, 13, 2))
sketch6.addConstraint(Sketcher.Constraint("Tangent", 13, 1, 10, 1))
sketch6.addConstraint(Sketcher.Constraint("Tangent", 16, 1, 17, 1))
sketch6.addConstraint(Sketcher.Constraint("Tangent", 17, 2, 18, 2))
sketch6.addConstraint(Sketcher.Constraint("Tangent", 18, 1, 19, 1))
sketch6.addConstraint(Sketcher.Constraint("Tangent", 19, 2, 16, 2))
sketch6.addConstraint(Sketcher.Constraint("Tangent", 20, 2, 21, 2))
sketch6.addConstraint(Sketcher.Constraint("Tangent", 21, 1, 22, 1))
sketch6.addConstraint(Sketcher.Constraint("Tangent", 22, 2, 23, 2))
sketch6.addConstraint(Sketcher.Constraint("Tangent", 23, 1, 20, 1))
sketch6.addConstraint(Sketcher.Constraint("Tangent", 24, 1, 25, 1))
sketch6.addConstraint(Sketcher.Constraint("Tangent", 25, 2, 26, 2))
sketch6.addConstraint(Sketcher.Constraint("Tangent", 26, 1, 27, 1))
sketch6.addConstraint(Sketcher.Constraint("Tangent", 27, 2, 24, 2))
sketch6.addConstraint(Sketcher.Constraint("Horizontal", 6))
sketch6.addConstraint(Sketcher.Constraint("Horizontal", 8))
sketch6.addConstraint(Sketcher.Constraint("Horizontal", 25))
sketch6.addConstraint(Sketcher.Constraint("Horizontal", 27))
sketch6.addConstraint(Sketcher.Constraint("Coincident", 0, 3, -1, 1))
sketch6.addConstraint(Sketcher.Constraint("Coincident", 15, 3, -1, 1))
sketch6.addConstraint(Sketcher.Constraint("Equal", 2, 4))
sketch6.addConstraint(Sketcher.Constraint("Equal", 4, 7))
sketch6.addConstraint(Sketcher.Constraint("Equal", 9, 11))
sketch6.addConstraint(Sketcher.Constraint("Equal", 11, 13))
sketch6.addConstraint(Sketcher.Constraint("Equal", 1, 14))
sketch6.addConstraint(Sketcher.Constraint("Equal", 13, 16))
sketch6.addConstraint(Sketcher.Constraint("Equal", 16, 18))
sketch6.addConstraint(Sketcher.Constraint("Equal", 18, 21))
sketch6.addConstraint(Sketcher.Constraint("Equal", 21, 23))
sketch6.addConstraint(Sketcher.Constraint("Equal", 23, 24))
sketch6.addConstraint(Sketcher.Constraint("Equal", 14, 28))
sketch6.addConstraint(Sketcher.Constraint("Symmetric", 11, 3, 16, 3, -1, 1))
sketch6.addConstraint(Sketcher.Constraint("Symmetric", 13, 3, 18, 3, -1, 1))
sketch6.addConstraint(Sketcher.Constraint("Symmetric", 2, 3, 21, 3, -1, 1))
sketch6.addConstraint(Sketcher.Constraint("Symmetric", 4, 3, 23, 3, -1, 1))
sketch6.addConstraint(Sketcher.Constraint("Symmetric", 7, 3, 24, 3, -1, 1))
sketch6.addConstraint(Sketcher.Constraint("Symmetric", 2, 3, 11, 3, -2))
sketch6.addConstraint(Sketcher.Constraint("Symmetric", 4, 3, 13, 3, -2))
sketch6.addConstraint(Sketcher.Constraint("Symmetric", 1, 3, 14, 3, -2))
sketch6.addConstraint(Sketcher.Constraint("PointOnObject", 28, 3, -2))
sketch6.addConstraint(Sketcher.Constraint("Vertical", 9, 3, 24, 3))
sketch6.addConstraint(Sketcher.Constraint("Vertical", 7, 3, 26, 3))
sketch6.addConstraint(Sketcher.Constraint("Diameter", 0, Q("4 in")))
sketch6.addConstraint(Sketcher.Constraint("Diameter", 15, Q("1.5 in")))
sketch6.addConstraint(Sketcher.Constraint("Radius", 2, Q("0.12 in")))
sketch6.addConstraint(Sketcher.Constraint("Diameter", 1, Q("0.313 in")))
sketch6.addConstraint(Sketcher.Constraint("DistanceX", 6, 1, 6, 2, Q("0.5 in")))
sketch6.addConstraint(Sketcher.Constraint("Angle", 3, Q("-60.000001 deg")))
sketch6.addConstraint(Sketcher.Constraint("Distance", 3, Q("0.5 in")))
sketch6.addConstraint(Sketcher.Constraint("DistanceY", 24, 3, 28, 3, Q("0.5315 in")))
sketch6.addConstraint(Sketcher.Constraint("DistanceX", 1, 3, -1, 1, 35.66904))
sketch6.addConstraint(Sketcher.Constraint("DistanceY", 1, 3, -1, 1, 20.59353))
sketch6.addConstraint(Sketcher.Constraint("DistanceX", 2, 3, -1, 1, 27.15261))
sketch6.addConstraint(Sketcher.Constraint("DistanceY", 4, 3, -1, 1, 19.342741))
sketch6.addConstraint(Sketcher.Constraint("DistanceY", 7, 3, -1, 1, 27.686959))
pad5 = body3.newObject("PartDesign::Pad", "Pad004")
pad5.Profile = sketch6
pad5.Length = Q("0.187 in")

doc.recompute()
